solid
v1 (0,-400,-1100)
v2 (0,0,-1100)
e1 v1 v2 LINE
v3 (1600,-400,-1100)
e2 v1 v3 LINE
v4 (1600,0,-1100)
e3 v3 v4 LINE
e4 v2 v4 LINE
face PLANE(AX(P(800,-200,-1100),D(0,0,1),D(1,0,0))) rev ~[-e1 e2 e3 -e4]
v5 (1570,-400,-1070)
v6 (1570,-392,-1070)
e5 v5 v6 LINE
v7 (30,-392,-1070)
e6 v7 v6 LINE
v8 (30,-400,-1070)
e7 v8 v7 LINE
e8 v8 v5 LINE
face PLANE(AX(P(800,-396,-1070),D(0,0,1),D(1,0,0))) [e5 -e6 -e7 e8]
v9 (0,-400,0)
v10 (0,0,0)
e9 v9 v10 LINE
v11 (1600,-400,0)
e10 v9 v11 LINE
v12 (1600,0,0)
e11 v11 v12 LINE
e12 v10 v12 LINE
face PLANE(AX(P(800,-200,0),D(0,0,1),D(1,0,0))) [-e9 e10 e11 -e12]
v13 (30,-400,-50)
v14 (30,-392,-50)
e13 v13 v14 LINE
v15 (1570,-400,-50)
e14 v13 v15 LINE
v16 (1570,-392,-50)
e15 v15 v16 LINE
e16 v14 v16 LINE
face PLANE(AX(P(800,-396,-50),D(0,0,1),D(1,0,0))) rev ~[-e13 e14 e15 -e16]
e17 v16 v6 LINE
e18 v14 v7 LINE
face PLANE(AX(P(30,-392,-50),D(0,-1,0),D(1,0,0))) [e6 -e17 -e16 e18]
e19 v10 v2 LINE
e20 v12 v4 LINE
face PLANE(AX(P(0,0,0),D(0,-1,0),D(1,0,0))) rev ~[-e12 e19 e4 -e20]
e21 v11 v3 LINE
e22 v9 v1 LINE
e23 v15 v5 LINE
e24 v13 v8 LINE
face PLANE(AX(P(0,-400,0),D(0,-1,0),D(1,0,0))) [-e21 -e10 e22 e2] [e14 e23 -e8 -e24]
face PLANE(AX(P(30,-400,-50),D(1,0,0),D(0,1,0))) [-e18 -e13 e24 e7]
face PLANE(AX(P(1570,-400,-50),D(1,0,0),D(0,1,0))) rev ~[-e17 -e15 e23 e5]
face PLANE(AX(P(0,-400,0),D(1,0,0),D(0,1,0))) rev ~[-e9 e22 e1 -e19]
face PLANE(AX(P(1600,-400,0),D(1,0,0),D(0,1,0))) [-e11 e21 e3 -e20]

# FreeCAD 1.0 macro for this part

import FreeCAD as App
import Part
import Sketcher

V = App.Vector


def add_polygon(sketch, points):
    """Adds a closed chain of lines whose ends are joined by coincident constraints."""
    first, n = sketch.GeometryCount, len(points)
    for a, b in zip(points, points[1:] + points[:1]):
        sketch.addGeometry(Part.LineSegment(App.Vector(*a, 0), App.Vector(*b, 0)), False)
    for i in range(n):
        sketch.addConstraint(Sketcher.Constraint("Coincident", first + i, 2, first + (i + 1) % n, 1))

doc = App.newDocument("Part")
params = doc.addObject("Spreadsheet::Sheet", "Params")
for row, (alias, value) in enumerate([
    ("sketch1_width", "1600 mm"),
    ("sketch1_height", "400 mm"),
    ("pad1_length", "1100 mm"),
    ("sketch2_width", "1540 mm"),
    ("sketch2_height", "8 mm"),
    ("pocket1_length", "1020 mm"),
], start=1):
    params.set(f"A{row}", alias)
    params.set(f"B{row}", "=" + value)
    params.setAlias(f"B{row}", alias)

body = doc.addObject("PartDesign::Body", "Body")

# Sketch on XY plane
sketch1 = body.newObject("Sketcher::SketchObject", "Sketch")
sketch1.AttachmentSupport = (doc.getObject("XY_Plane"), [""])
sketch1.MapMode = "FlatFace"
add_polygon(sketch1, [(0, 0), (0, -400), (1600, -400), (1600, 0)])  # lines 0-3
sketch1.addConstraint([
    Sketcher.Constraint("Vertical", 0),
    Sketcher.Constraint("Horizontal", 1),
    Sketcher.Constraint("Vertical", 2),
    Sketcher.Constraint("Horizontal", 3),
    Sketcher.Constraint("Coincident", 3, 2, -1, 1),
    Sketcher.Constraint("DistanceX", 1, 1, 1, 2, 1600.0),
    Sketcher.Constraint("DistanceY", 0, 2, 0, 1, 400.0),
])
sketch1.setExpression("Constraints[9]", "Params.sketch1_width")
sketch1.setExpression("Constraints[10]", "Params.sketch1_height")
pad1 = body.newObject("PartDesign::Pad", "Pad")
pad1.Profile = sketch1
pad1.setExpression("Length", "Params.pad1_length")
pad1.Reversed = True

# Sketch on XY plane
sketch2 = body.newObject("Sketcher::SketchObject", "Sketch001")
sketch2.AttachmentSupport = (doc.getObject("XY_Plane"), [""])
sketch2.MapMode = "FlatFace"
sketch2.AttachmentOffset = App.Placement(V(0, 0, -50), App.Rotation())
add_polygon(sketch2, [(30, -392), (30, -400), (1570, -400), (1570, -392)])  # lines 0-3
sketch2.addConstraint([
    Sketcher.Constraint("Vertical", 0),
    Sketcher.Constraint("Horizontal", 1),
    Sketcher.Constraint("Vertical", 2),
    Sketcher.Constraint("Horizontal", 3),
    Sketcher.Constraint("DistanceX", 1, 1, 1, 2, 1540.0),
    Sketcher.Constraint("DistanceY", 0, 2, 0, 1, 8.0),
    Sketcher.Constraint("DistanceX", -1, 1, 0, 2, 30.0),
    Sketcher.Constraint("DistanceY", 0, 2, -1, 1, 400.0),
])
sketch2.setExpression("Constraints[8]", "Params.sketch2_width")
sketch2.setExpression("Constraints[9]", "Params.sketch2_height")
pocket1 = body.newObject("PartDesign::Pocket", "Pocket")
pocket1.Profile = sketch2
pocket1.setExpression("Length", "Params.pocket1_length")

doc.recompute()
